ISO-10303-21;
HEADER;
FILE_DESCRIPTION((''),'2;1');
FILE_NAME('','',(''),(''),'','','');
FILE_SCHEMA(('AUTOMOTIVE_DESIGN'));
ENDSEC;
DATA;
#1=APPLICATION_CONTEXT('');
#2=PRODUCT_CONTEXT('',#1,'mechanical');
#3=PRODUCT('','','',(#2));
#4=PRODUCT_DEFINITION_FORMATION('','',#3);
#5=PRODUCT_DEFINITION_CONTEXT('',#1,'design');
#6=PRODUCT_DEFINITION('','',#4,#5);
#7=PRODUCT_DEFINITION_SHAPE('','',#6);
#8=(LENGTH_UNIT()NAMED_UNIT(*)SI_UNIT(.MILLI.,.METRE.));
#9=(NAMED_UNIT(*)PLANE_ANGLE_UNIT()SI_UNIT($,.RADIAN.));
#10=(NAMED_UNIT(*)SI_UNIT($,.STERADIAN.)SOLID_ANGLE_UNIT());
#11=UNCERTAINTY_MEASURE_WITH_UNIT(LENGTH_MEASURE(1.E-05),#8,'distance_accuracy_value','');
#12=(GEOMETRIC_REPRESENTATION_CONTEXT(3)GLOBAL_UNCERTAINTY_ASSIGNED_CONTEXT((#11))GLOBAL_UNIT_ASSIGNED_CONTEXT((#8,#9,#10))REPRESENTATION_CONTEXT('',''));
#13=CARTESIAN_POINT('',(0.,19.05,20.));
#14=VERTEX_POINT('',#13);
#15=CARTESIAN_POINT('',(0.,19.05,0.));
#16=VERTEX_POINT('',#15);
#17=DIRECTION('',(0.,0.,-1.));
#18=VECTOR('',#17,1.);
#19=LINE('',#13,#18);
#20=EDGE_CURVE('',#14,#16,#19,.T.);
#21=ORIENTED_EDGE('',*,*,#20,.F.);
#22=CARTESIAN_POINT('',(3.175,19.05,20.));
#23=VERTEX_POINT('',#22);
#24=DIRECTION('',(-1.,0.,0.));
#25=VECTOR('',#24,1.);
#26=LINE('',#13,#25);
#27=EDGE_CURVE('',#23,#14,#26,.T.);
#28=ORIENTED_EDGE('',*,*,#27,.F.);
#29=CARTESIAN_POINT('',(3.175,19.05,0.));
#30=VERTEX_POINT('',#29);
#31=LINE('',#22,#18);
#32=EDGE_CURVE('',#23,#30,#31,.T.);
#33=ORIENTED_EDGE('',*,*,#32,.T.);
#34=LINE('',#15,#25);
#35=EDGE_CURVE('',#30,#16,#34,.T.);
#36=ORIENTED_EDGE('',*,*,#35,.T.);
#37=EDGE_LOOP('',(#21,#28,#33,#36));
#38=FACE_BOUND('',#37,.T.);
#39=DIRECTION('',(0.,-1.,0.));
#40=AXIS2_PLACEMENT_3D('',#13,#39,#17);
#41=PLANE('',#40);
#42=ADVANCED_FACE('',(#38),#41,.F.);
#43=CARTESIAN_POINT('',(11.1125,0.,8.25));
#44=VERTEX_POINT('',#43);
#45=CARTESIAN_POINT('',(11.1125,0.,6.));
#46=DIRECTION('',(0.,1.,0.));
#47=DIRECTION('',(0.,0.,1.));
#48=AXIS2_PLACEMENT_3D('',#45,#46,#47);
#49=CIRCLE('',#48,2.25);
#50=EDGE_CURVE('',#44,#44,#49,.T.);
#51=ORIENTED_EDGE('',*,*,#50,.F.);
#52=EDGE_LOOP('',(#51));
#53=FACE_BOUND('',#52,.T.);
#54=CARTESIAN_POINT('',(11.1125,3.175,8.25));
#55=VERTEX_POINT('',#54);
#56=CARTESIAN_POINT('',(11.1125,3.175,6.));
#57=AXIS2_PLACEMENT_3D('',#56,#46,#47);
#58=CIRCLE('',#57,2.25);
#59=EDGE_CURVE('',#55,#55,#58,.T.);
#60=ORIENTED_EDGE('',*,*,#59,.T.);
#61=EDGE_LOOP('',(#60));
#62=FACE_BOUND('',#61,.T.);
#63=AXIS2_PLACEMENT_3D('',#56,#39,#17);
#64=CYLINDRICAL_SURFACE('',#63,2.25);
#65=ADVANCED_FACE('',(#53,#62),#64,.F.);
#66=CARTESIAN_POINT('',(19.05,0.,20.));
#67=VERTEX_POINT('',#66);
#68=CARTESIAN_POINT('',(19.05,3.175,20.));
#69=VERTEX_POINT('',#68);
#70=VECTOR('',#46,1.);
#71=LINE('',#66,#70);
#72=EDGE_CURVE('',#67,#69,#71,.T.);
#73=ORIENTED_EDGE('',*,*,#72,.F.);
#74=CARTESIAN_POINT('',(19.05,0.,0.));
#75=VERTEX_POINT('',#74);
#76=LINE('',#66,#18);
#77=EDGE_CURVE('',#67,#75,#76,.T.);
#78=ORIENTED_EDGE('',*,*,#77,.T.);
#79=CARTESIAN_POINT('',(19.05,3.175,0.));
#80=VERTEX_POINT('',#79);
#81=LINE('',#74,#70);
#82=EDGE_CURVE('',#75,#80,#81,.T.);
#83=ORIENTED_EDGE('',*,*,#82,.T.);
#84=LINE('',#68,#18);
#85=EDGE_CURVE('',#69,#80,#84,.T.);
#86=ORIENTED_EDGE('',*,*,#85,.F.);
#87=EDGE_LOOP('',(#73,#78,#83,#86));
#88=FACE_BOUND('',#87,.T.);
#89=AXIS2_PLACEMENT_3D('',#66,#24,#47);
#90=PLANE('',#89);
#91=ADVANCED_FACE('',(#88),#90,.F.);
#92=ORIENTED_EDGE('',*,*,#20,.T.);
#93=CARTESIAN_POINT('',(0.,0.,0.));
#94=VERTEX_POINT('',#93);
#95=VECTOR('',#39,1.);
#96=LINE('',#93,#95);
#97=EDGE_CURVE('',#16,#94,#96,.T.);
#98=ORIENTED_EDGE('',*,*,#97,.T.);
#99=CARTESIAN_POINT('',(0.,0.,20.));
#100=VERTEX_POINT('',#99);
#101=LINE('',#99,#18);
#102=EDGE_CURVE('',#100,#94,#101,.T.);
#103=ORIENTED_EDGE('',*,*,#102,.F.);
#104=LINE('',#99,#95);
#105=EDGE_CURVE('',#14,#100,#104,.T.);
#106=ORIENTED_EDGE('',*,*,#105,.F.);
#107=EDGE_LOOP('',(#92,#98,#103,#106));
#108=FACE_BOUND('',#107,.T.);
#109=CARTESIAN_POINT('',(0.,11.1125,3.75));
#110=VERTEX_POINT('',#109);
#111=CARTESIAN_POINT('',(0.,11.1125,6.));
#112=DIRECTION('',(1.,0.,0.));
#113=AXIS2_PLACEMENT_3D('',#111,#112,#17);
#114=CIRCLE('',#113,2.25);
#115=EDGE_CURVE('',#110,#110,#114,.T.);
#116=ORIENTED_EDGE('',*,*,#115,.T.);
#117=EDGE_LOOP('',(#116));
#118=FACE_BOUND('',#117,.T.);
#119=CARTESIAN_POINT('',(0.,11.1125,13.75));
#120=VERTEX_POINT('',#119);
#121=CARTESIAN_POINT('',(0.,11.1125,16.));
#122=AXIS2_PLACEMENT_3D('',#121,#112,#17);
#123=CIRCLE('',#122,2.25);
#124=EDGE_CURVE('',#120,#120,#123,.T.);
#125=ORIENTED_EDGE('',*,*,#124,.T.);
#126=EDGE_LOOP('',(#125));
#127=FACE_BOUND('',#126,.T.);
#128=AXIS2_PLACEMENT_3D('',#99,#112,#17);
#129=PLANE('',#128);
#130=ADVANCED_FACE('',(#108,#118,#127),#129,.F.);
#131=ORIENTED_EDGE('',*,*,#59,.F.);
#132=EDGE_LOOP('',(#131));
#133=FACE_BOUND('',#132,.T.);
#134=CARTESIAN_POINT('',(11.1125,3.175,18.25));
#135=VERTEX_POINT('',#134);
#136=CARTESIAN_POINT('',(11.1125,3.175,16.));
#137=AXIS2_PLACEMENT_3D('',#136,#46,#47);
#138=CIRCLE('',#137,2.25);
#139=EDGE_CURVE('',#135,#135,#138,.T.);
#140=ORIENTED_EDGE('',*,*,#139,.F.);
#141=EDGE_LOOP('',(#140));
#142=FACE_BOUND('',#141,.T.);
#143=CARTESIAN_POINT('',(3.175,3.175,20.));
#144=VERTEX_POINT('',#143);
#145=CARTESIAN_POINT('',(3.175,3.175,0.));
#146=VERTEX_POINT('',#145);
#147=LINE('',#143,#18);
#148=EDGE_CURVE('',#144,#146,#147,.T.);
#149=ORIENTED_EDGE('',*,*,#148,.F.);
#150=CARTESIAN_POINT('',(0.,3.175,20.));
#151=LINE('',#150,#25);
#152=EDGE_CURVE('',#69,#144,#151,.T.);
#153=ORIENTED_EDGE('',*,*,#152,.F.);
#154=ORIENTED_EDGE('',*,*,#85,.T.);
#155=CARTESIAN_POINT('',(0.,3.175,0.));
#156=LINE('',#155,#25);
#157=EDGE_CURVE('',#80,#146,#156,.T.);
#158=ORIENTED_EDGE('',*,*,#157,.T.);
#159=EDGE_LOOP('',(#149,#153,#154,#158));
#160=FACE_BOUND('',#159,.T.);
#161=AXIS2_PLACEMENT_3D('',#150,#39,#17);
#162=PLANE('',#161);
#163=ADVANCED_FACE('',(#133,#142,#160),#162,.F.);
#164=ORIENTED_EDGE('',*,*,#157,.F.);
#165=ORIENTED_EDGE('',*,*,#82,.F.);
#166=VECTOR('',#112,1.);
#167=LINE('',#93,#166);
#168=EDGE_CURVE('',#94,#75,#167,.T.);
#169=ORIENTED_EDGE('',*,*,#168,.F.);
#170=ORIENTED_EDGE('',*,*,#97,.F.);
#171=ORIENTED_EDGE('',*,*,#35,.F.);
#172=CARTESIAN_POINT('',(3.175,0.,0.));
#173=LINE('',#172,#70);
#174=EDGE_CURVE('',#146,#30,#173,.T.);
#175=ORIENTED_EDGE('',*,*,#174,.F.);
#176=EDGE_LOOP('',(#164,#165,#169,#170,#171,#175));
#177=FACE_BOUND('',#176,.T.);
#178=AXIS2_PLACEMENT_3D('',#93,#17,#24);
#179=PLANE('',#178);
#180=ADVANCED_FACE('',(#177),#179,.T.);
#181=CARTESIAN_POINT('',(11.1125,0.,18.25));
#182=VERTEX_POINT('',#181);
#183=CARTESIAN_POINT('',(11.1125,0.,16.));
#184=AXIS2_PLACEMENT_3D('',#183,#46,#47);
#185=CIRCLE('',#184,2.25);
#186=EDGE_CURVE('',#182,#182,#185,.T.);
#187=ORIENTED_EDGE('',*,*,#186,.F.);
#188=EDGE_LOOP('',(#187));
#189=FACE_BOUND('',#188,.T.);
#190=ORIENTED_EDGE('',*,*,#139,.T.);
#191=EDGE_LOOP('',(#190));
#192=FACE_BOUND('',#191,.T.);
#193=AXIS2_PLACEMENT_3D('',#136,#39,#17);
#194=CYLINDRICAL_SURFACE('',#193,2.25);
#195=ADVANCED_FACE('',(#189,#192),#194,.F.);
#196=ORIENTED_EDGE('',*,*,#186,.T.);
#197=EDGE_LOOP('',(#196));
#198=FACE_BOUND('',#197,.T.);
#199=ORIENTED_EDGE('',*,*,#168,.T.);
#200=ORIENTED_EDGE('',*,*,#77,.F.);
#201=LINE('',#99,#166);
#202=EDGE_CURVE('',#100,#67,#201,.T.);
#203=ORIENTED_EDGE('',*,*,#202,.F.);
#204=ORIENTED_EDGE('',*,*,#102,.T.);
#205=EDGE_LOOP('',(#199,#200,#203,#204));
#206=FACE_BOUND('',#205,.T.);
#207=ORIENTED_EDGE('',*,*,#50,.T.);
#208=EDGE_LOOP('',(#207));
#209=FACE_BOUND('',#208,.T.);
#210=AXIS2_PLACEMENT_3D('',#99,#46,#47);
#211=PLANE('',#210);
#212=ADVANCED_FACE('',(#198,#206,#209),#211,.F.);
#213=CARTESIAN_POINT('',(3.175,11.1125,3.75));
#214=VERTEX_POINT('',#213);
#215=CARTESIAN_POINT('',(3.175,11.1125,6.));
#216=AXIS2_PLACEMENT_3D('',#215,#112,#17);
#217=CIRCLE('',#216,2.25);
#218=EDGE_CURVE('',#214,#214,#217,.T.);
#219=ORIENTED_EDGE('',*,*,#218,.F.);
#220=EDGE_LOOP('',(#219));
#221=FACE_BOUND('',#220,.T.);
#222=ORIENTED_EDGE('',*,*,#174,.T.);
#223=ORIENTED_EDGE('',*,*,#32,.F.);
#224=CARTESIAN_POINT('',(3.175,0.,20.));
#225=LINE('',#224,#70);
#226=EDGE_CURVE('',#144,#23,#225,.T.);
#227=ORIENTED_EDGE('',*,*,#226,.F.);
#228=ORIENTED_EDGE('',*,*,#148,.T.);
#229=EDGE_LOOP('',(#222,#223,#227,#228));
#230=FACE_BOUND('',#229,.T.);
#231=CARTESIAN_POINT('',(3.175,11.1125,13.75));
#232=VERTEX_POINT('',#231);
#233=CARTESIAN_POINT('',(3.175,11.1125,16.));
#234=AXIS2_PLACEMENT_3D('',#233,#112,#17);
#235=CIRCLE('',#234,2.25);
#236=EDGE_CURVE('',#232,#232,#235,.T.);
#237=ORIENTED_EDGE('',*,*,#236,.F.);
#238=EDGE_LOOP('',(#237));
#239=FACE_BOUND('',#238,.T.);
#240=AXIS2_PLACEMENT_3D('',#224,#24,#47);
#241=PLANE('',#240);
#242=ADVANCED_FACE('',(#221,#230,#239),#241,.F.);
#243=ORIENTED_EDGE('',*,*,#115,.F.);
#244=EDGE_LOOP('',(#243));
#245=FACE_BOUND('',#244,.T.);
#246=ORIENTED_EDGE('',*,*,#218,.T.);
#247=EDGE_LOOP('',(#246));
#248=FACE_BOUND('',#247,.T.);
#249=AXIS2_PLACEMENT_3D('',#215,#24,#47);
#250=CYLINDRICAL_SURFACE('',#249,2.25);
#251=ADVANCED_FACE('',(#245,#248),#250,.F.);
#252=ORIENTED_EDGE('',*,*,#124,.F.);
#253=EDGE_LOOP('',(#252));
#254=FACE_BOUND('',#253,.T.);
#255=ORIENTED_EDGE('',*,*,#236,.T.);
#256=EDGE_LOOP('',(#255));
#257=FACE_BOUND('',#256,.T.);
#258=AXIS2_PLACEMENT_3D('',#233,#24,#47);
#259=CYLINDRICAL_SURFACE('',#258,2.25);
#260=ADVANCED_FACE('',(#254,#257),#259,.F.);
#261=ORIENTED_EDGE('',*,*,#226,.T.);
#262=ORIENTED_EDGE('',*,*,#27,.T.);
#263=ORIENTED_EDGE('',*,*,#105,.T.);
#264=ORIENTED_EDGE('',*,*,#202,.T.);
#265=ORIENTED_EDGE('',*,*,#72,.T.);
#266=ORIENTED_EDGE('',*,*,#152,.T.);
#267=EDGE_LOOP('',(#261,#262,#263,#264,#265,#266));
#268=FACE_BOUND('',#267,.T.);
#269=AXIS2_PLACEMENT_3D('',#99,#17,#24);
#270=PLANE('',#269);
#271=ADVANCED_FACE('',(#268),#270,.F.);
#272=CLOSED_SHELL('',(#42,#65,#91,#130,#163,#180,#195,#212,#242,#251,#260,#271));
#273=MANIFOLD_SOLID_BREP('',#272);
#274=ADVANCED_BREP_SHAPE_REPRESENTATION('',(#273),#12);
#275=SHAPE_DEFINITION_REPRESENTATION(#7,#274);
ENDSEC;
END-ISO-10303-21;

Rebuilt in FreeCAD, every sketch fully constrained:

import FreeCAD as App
import Part
import Sketcher

V = App.Vector
Q = App.Units.Quantity

doc = App.newDocument("Part")
params = doc.addObject("Spreadsheet::Sheet", "Params")
for row, (alias, value) in enumerate([
    ("sketch1_width", "19.05 mm"),
    ("pad1_length", "20 mm"),
    ("sketch2_height", "19.05 mm"),
    ("pad2_length", "20 mm"),
    ("sketch3_diameter", "4.5 mm"),
    ("pocket1_length", "3.175 mm"),
    ("sketch4_diameter", "4.5 mm"),
    ("pocket2_length", "3.175 mm"),
], start=1):
    params.set(f"A{row}", alias)
    params.set(f"B{row}", "=" + value)
    params.setAlias(f"B{row}", alias)

body = doc.addObject("PartDesign::Body", "Body")

# Sketch on XY plane
sketch1 = doc.addObject("Sketcher::SketchObject", "Sketch")
body.addObject(sketch1)
sketch1.AttachmentSupport = (doc.XY_Plane, [""])
sketch1.MapMode = "FlatFace"
sketch1.addGeometry([
    Part.LineSegment(V(0, 3.175, 0), V(0, 0, 0)),
    Part.LineSegment(V(0, 0, 0), V(19.05, 0, 0)),
    Part.LineSegment(V(19.05, 0, 0), V(19.05, 3.175, 0)),
    Part.LineSegment(V(19.05, 3.175, 0), V(0, 3.175, 0)),
], False)
sketch1.addConstraint([
    Sketcher.Constraint("Coincident", 0, 2, 1, 1),
    Sketcher.Constraint("Coincident", 1, 2, 2, 1),
    Sketcher.Constraint("Coincident", 2, 2, 3, 1),
    Sketcher.Constraint("Coincident", 3, 2, 0, 1),
    Sketcher.Constraint("Vertical", 0),
    Sketcher.Constraint("Horizontal", 1),
    Sketcher.Constraint("Vertical", 2),
    Sketcher.Constraint("Horizontal", 3),
    Sketcher.Constraint("Coincident", 0, 2, -1, 1),
    Sketcher.Constraint("DistanceX", 1, 1, 1, 2, Q("19.05 mm")),
    Sketcher.Constraint("DistanceY", 0, 2, 0, 1, Q("3.175 mm")),
])
sketch1.setExpression("Constraints[9]", "Params.sketch1_width")
pad1 = doc.addObject("PartDesign::Pad", "Pad")
body.addObject(pad1)
pad1.Profile = sketch1
pad1.setExpression("Length", "Params.pad1_length")

# Sketch on XY plane
sketch2 = doc.addObject("Sketcher::SketchObject", "Sketch001")
body.addObject(sketch2)
sketch2.AttachmentSupport = (doc.XY_Plane, [""])
sketch2.MapMode = "FlatFace"
sketch2.addGeometry([
    Part.LineSegment(V(0, 19.05, 0), V(0, 0, 0)),
    Part.LineSegment(V(0, 0, 0), V(3.175, 0, 0)),
    Part.LineSegment(V(3.175, 0, 0), V(3.175, 19.05, 0)),
    Part.LineSegment(V(3.175, 19.05, 0), V(0, 19.05, 0)),
], False)
sketch2.addConstraint([
    Sketcher.Constraint("Coincident", 0, 2, 1, 1),
    Sketcher.Constraint("Coincident", 1, 2, 2, 1),
    Sketcher.Constraint("Coincident", 2, 2, 3, 1),
    Sketcher.Constraint("Coincident", 3, 2, 0, 1),
    Sketcher.Constraint("Vertical", 0),
    Sketcher.Constraint("Horizontal", 1),
    Sketcher.Constraint("Vertical", 2),
    Sketcher.Constraint("Horizontal", 3),
    Sketcher.Constraint("Coincident", 0, 2, -1, 1),
    Sketcher.Constraint("DistanceY", 0, 2, 0, 1, Q("19.05 mm")),
    Sketcher.Constraint("DistanceX", 1, 1, 1, 2, Q("3.175 mm")),
])
sketch2.setExpression("Constraints[9]", "Params.sketch2_height")
pad2 = doc.addObject("PartDesign::Pad", "Pad001")
body.addObject(pad2)
pad2.Profile = sketch2
pad2.setExpression("Length", "Params.pad2_length")

# Sketch on XZ plane
sketch3 = doc.addObject("Sketcher::SketchObject", "Sketch002")
body.addObject(sketch3)
sketch3.AttachmentSupport = (doc.XZ_Plane, [""])
sketch3.MapMode = "FlatFace"
sketch3.addGeometry([
    Part.Circle(V(11.1125, 6, 0), V(0, 0, 1), 2.25),
    Part.Circle(V(11.1125, 16, 0), V(0, 0, 1), 2.25),
], False)
sketch3.addConstraint([
    Sketcher.Constraint("Equal", 0, 1),
    Sketcher.Constraint("Vertical", 0, 3, 1, 3),
    Sketcher.Constraint("Diameter", 0, Q("4.5 mm")),
    Sketcher.Constraint("DistanceY", -1, 1, 0, 3, Q("6 mm")),
    Sketcher.Constraint("DistanceY", -1, 1, 1, 3, Q("16 mm")),
    Sketcher.Constraint("DistanceX", -1, 1, 0, 3, Q("11.1125 mm")),
])
sketch3.setExpression("Constraints[2]", "Params.sketch3_diameter")
pocket1 = doc.addObject("PartDesign::Pocket", "Pocket")
body.addObject(pocket1)
pocket1.Profile = sketch3
pocket1.setExpression("Length", "Params.pocket1_length")

# Sketch on YZ plane
sketch4 = doc.addObject("Sketcher::SketchObject", "Sketch003")
body.addObject(sketch4)
sketch4.AttachmentSupport = (doc.YZ_Plane, [""])
sketch4.MapMode = "FlatFace"
sketch4.addGeometry([
    Part.Circle(V(11.1125, 6, 0), V(0, 0, 1), 2.25),
    Part.Circle(V(11.1125, 16, 0), V(0, 0, 1), 2.25),
], False)
sketch4.addConstraint([
    Sketcher.Constraint("Equal", 0, 1),
    Sketcher.Constraint("Vertical", 0, 3, 1, 3),
    Sketcher.Constraint("Diameter", 0, Q("4.5 mm")),
    Sketcher.Constraint("DistanceY", -1, 1, 0, 3, Q("6 mm")),
    Sketcher.Constraint("DistanceY", -1, 1, 1, 3, Q("16 mm")),
    Sketcher.Constraint("DistanceX", -1, 1, 0, 3, Q("11.1125 mm")),
])
sketch4.setExpression("Constraints[2]", "Params.sketch4_diameter")
pocket2 = doc.addObject("PartDesign::Pocket", "Pocket001")
body.addObject(pocket2)
pocket2.Profile = sketch4
pocket2.setExpression("Length", "Params.pocket2_length")
pocket2.Reversed = True

doc.recompute()
